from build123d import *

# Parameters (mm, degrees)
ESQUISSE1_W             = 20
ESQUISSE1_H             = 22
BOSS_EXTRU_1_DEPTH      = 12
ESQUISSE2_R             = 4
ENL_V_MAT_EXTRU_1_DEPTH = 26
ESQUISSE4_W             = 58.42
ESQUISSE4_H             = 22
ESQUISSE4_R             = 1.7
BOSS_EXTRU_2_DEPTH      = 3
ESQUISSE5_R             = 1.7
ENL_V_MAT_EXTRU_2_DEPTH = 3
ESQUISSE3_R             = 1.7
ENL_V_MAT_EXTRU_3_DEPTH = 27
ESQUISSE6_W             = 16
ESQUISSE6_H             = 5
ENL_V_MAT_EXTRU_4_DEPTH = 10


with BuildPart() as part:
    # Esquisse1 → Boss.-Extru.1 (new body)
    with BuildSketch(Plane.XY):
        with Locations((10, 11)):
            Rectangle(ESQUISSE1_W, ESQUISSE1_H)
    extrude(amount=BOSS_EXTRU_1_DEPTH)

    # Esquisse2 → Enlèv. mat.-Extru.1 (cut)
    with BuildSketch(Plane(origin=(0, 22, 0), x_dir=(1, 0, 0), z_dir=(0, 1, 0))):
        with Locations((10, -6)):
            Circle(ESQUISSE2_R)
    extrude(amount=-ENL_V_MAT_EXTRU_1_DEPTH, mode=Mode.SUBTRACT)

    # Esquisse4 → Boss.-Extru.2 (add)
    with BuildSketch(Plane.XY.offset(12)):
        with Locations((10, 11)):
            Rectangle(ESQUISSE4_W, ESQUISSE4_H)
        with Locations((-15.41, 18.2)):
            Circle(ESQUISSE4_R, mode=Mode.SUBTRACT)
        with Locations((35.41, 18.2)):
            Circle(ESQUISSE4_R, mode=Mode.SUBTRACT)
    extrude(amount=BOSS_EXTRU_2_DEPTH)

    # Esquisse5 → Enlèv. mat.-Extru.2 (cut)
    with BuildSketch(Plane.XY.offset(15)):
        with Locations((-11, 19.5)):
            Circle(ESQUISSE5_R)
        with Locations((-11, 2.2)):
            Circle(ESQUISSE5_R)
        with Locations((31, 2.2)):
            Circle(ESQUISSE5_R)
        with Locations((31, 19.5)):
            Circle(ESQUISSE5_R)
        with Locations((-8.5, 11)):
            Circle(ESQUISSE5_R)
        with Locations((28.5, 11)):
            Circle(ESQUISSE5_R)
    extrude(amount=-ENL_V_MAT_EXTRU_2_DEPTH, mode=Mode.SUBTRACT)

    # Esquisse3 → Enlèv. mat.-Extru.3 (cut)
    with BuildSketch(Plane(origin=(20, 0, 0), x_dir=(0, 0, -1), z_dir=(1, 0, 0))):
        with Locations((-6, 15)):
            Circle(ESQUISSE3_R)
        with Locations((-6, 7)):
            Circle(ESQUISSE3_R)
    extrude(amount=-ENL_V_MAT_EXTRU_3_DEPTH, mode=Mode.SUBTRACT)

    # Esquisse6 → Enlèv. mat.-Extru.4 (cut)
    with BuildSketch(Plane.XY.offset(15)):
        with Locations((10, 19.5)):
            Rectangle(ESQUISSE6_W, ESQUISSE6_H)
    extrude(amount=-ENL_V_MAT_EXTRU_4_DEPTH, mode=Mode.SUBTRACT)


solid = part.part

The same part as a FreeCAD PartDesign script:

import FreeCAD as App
import Part
import Sketcher

V = App.Vector
Q = App.Units.Quantity

doc = App.newDocument("Part")
body = doc.addObject("PartDesign::Body", "Body")

sketch1 = body.newObject("Sketcher::SketchObject", "Sketch")
sketch1.AttachmentSupport = (doc.getObject("XY_Plane"), [""])
sketch1.MapMode = "FlatFace"
sketch1.addGeometry(Part.LineSegment(V(0, 22, 0), V(0, 0, 0)), False)
sketch1.addGeometry(Part.LineSegment(V(0, 0, 0), V(20, 0, 0)), False)
sketch1.addGeometry(Part.LineSegment(V(20, 0, 0), V(20, 22, 0)), False)
sketch1.addGeometry(Part.LineSegment(V(20, 22, 0), V(0, 22, 0)), False)
sketch1.addConstraint(Sketcher.Constraint("Coincident", 0, 2, 1, 1))
sketch1.addConstraint(Sketcher.Constraint("Coincident", 1, 2, 2, 1))
sketch1.addConstraint(Sketcher.Constraint("Coincident", 2, 2, 3, 1))
sketch1.addConstraint(Sketcher.Constraint("Coincident", 3, 2, 0, 1))
sketch1.addConstraint(Sketcher.Constraint("Vertical", 0))
sketch1.addConstraint(Sketcher.Constraint("Horizontal", 1))
sketch1.addConstraint(Sketcher.Constraint("Vertical", 2))
sketch1.addConstraint(Sketcher.Constraint("Horizontal", 3))
sketch1.addConstraint(Sketcher.Constraint("Coincident", 0, 2, -1, 1))
sketch1.addConstraint(Sketcher.Constraint("DistanceX", 1, 1, 1, 2, Q("20 mm")))
sketch1.addConstraint(Sketcher.Constraint("DistanceY", 0, 2, 0, 1, Q("22 mm")))
pad1 = body.newObject("PartDesign::Pad", "Pad")
pad1.Profile = sketch1
pad1.Length = 12

sketch2 = body.newObject("Sketcher::SketchObject", "Sketch001")
sketch2.AttachmentSupport = (doc.getObject("XZ_Plane"), [""])
sketch2.MapMode = "FlatFace"
sketch2.AttachmentOffset = App.Placement(V(0, 0, -22), App.Rotation())
sketch2.addGeometry(Part.Circle(V(10, 6, 0), V(0, 0, 1), 4), False)
sketch2.addConstraint(Sketcher.Constraint("Diameter", 0, Q("8 mm")))
sketch2.addConstraint(Sketcher.Constraint("DistanceX", -1, 1, 0, 3, Q("10 mm")))
sketch2.addConstraint(Sketcher.Constraint("DistanceY", -1, 1, 0, 3, Q("6 mm")))
pocket1 = body.newObject("PartDesign::Pocket", "Pocket")
pocket1.Profile = sketch2
pocket1.Length = 26
pocket1.Reversed = True

sketch3 = body.newObject("Sketcher::SketchObject", "Sketch002")
sketch3.AttachmentSupport = (doc.getObject("XY_Plane"), [""])
sketch3.MapMode = "FlatFace"
sketch3.AttachmentOffset = App.Placement(V(0, 0, 12), App.Rotation())
sketch3.addGeometry(Part.LineSegment(V(-19.2, 22, 0), V(-19.2, 0, 0)), False)
sketch3.addGeometry(Part.LineSegment(V(-19.2, 0, 0), V(39.2, 0, 0)), False)
sketch3.addGeometry(Part.LineSegment(V(39.2, 0, 0), V(39.2, 22, 0)), False)
sketch3.addGeometry(Part.LineSegment(V(39.2, 22, 0), V(-19.2, 22, 0)), False)
sketch3.addGeometry(Part.Circle(V(-15.4, 18.2, 0), V(0, 0, 1), 1.7), False)
sketch3.addGeometry(Part.Circle(V(35.4, 18.2, 0), V(0, 0, 1), 1.7), False)
sketch3.addConstraint(Sketcher.Constraint("Coincident", 0, 2, 1, 1))
sketch3.addConstraint(Sketcher.Constraint("Coincident", 1, 2, 2, 1))
sketch3.addConstraint(Sketcher.Constraint("Coincident", 2, 2, 3, 1))
sketch3.addConstraint(Sketcher.Constraint("Coincident", 3, 2, 0, 1))
sketch3.addConstraint(Sketcher.Constraint("Vertical", 0))
sketch3.addConstraint(Sketcher.Constraint("Horizontal", 1))
sketch3.addConstraint(Sketcher.Constraint("Vertical", 2))
sketch3.addConstraint(Sketcher.Constraint("Horizontal", 3))
sketch3.addConstraint(Sketcher.Constraint("Equal", 4, 5))
sketch3.addConstraint(Sketcher.Constraint("PointOnObject", 0, 2, -1))
sketch3.addConstraint(Sketcher.Constraint("Horizontal", 4, 3, 5, 3))
sketch3.addConstraint(Sketcher.Constraint("Diameter", 4, Q("3.4 mm")))
sketch3.addConstraint(Sketcher.Constraint("DistanceY", 0, 2, 0, 1, Q("22 mm")))
sketch3.addConstraint(Sketcher.Constraint("DistanceX", 1, 1, 1, 2, Q("58.42 mm")))
sketch3.addConstraint(Sketcher.Constraint("DistanceY", -1, 1, 4, 3, Q("18.2 mm")))
sketch3.addConstraint(Sketcher.Constraint("DistanceX", 0, 2, 4, 3, Q("3.8 mm")))
sketch3.addConstraint(Sketcher.Constraint("DistanceX", 5, 3, 1, 2, Q("3.8 mm")))
sketch3.addConstraint(Sketcher.Constraint("DistanceX", 4, 3, -1, 1, Q("15.41 mm")))
pad2 = body.newObject("PartDesign::Pad", "Pad001")
pad2.Profile = sketch3
pad2.Length = 3

sketch4 = body.newObject("Sketcher::SketchObject", "Sketch003")
sketch4.AttachmentSupport = (doc.getObject("XY_Plane"), [""])
sketch4.MapMode = "FlatFace"
sketch4.AttachmentOffset = App.Placement(V(0, 0, 15), App.Rotation())
sketch4.addGeometry(Part.Circle(V(-11, 19.5, 0), V(0, 0, 1), 1.7), False)
sketch4.addGeometry(Part.Circle(V(-11, 2.2, 0), V(0, 0, 1), 1.7), False)
sketch4.addGeometry(Part.Circle(V(31, 2.2, 0), V(0, 0, 1), 1.7), False)
sketch4.addGeometry(Part.Circle(V(31, 19.5, 0), V(0, 0, 1), 1.7), False)
sketch4.addGeometry(Part.Circle(V(-8.5, 11, 0), V(0, 0, 1), 1.7), False)
sketch4.addGeometry(Part.Circle(V(28.5, 11, 0), V(0, 0, 1), 1.7), False)
sketch4.addConstraint(Sketcher.Constraint("Equal", 0, 1))
sketch4.addConstraint(Sketcher.Constraint("Equal", 1, 2))
sketch4.addConstraint(Sketcher.Constraint("Equal", 2, 3))
sketch4.addConstraint(Sketcher.Constraint("Equal", 3, 4))
sketch4.addConstraint(Sketcher.Constraint("Equal", 4, 5))
sketch4.addConstraint(Sketcher.Constraint("Horizontal", 1, 3, 2, 3))
sketch4.addConstraint(Sketcher.Constraint("Horizontal", 0, 3, 3, 3))
sketch4.addConstraint(Sketcher.Constraint("Horizontal", 4, 3, 5, 3))
sketch4.addConstraint(Sketcher.Constraint("Vertical", 0, 3, 1, 3))
sketch4.addConstraint(Sketcher.Constraint("Vertical", 2, 3, 3, 3))
sketch4.addConstraint(Sketcher.Constraint("Diameter", 0, Q("3.4 mm")))
sketch4.addConstraint(Sketcher.Constraint("DistanceX", 0, 3, -1, 1, Q("11 mm")))
sketch4.addConstraint(Sketcher.Constraint("DistanceX", -1, 1, 2, 3, Q("31 mm")))
sketch4.addConstraint(Sketcher.Constraint("DistanceY", -1, 1, 4, 3, Q("11 mm")))
sketch4.addConstraint(Sketcher.Constraint("DistanceX", 4, 3, 5, 3, Q("37 mm")))
sketch4.addConstraint(Sketcher.Constraint("DistanceY", -1, 1, 0, 3, Q("19.5 mm")))
sketch4.addConstraint(Sketcher.Constraint("DistanceY", -1, 1, 1, 3, Q("2.2 mm")))
sketch4.addConstraint(Sketcher.Constraint("DistanceX", 4, 3, -1, 1, Q("8.5 mm")))
pocket2 = body.newObject("PartDesign::Pocket", "Pocket001")
pocket2.Profile = sketch4
pocket2.Length = 3

sketch5 = body.newObject("Sketcher::SketchObject", "Sketch004")
sketch5.AttachmentSupport = (doc.getObject("YZ_Plane"), [""])
sketch5.MapMode = "FlatFace"
sketch5.AttachmentOffset = App.Placement(V(0, 0, 20), App.Rotation())
sketch5.addGeometry(Part.Circle(V(15, 6, 0), V(0, 0, 1), 1.7), False)
sketch5.addGeometry(Part.Circle(V(7, 6, 0), V(0, 0, 1), 1.7), False)
sketch5.addConstraint(Sketcher.Constraint("Equal", 0, 1))
sketch5.addConstraint(Sketcher.Constraint("Horizontal", 0, 3, 1, 3))
sketch5.addConstraint(Sketcher.Constraint("Diameter", 0, Q("3.4 mm")))
sketch5.addConstraint(Sketcher.Constraint("DistanceX", -1, 1, 0, 3, Q("15 mm")))
sketch5.addConstraint(Sketcher.Constraint("DistanceY", -1, 1, 0, 3, Q("6 mm")))
sketch5.addConstraint(Sketcher.Constraint("DistanceX", -1, 1, 1, 3, Q("7 mm")))
pocket3 = body.newObject("PartDesign::Pocket", "Pocket002")
pocket3.Profile = sketch5
pocket3.Length = 27

sketch6 = body.newObject("Sketcher::SketchObject", "Sketch005")
sketch6.AttachmentSupport = (doc.getObject("XY_Plane"), [""])
sketch6.MapMode = "FlatFace"
sketch6.AttachmentOffset = App.Placement(V(0, 0, 15), App.Rotation())
sketch6.addGeometry(Part.LineSegment(V(2, 22, 0), V(2, 17, 0)), False)
sketch6.addGeometry(Part.LineSegment(V(2, 17, 0), V(18, 17, 0)), False)
sketch6.addGeometry(Part.LineSegment(V(18, 17, 0), V(18, 22, 0)), False)
sketch6.addGeometry(Part.LineSegment(V(18, 22, 0), V(2, 22, 0)), False)
sketch6.addConstraint(Sketcher.Constraint("Coincident", 0, 2, 1, 1))
sketch6.addConstraint(Sketcher.Constraint("Coincident", 1, 2, 2, 1))
sketch6.addConstraint(Sketcher.Constraint("Coincident", 2, 2, 3, 1))
sketch6.addConstraint(Sketcher.Constraint("Coincident", 3, 2, 0, 1))
sketch6.addConstraint(Sketcher.Constraint("Vertical", 0))
sketch6.addConstraint(Sketcher.Constraint("Horizontal", 1))
sketch6.addConstraint(Sketcher.Constraint("Vertical", 2))
sketch6.addConstraint(Sketcher.Constraint("Horizontal", 3))
sketch6.addConstraint(Sketcher.Constraint("DistanceX", 1, 1, 1, 2, Q("16 mm")))
sketch6.addConstraint(Sketcher.Constraint("DistanceY", 0, 2, 0, 1, Q("5 mm")))
sketch6.addConstraint(Sketcher.Constraint("DistanceX", -1, 1, 0, 2, Q("2 mm")))
sketch6.addConstraint(Sketcher.Constraint("DistanceY", -1, 1, 0, 2, Q("17 mm")))
pocket4 = body.newObject("PartDesign::Pocket", "Pocket003")
pocket4.Profile = sketch6
pocket4.Length = 10

doc.recompute()
